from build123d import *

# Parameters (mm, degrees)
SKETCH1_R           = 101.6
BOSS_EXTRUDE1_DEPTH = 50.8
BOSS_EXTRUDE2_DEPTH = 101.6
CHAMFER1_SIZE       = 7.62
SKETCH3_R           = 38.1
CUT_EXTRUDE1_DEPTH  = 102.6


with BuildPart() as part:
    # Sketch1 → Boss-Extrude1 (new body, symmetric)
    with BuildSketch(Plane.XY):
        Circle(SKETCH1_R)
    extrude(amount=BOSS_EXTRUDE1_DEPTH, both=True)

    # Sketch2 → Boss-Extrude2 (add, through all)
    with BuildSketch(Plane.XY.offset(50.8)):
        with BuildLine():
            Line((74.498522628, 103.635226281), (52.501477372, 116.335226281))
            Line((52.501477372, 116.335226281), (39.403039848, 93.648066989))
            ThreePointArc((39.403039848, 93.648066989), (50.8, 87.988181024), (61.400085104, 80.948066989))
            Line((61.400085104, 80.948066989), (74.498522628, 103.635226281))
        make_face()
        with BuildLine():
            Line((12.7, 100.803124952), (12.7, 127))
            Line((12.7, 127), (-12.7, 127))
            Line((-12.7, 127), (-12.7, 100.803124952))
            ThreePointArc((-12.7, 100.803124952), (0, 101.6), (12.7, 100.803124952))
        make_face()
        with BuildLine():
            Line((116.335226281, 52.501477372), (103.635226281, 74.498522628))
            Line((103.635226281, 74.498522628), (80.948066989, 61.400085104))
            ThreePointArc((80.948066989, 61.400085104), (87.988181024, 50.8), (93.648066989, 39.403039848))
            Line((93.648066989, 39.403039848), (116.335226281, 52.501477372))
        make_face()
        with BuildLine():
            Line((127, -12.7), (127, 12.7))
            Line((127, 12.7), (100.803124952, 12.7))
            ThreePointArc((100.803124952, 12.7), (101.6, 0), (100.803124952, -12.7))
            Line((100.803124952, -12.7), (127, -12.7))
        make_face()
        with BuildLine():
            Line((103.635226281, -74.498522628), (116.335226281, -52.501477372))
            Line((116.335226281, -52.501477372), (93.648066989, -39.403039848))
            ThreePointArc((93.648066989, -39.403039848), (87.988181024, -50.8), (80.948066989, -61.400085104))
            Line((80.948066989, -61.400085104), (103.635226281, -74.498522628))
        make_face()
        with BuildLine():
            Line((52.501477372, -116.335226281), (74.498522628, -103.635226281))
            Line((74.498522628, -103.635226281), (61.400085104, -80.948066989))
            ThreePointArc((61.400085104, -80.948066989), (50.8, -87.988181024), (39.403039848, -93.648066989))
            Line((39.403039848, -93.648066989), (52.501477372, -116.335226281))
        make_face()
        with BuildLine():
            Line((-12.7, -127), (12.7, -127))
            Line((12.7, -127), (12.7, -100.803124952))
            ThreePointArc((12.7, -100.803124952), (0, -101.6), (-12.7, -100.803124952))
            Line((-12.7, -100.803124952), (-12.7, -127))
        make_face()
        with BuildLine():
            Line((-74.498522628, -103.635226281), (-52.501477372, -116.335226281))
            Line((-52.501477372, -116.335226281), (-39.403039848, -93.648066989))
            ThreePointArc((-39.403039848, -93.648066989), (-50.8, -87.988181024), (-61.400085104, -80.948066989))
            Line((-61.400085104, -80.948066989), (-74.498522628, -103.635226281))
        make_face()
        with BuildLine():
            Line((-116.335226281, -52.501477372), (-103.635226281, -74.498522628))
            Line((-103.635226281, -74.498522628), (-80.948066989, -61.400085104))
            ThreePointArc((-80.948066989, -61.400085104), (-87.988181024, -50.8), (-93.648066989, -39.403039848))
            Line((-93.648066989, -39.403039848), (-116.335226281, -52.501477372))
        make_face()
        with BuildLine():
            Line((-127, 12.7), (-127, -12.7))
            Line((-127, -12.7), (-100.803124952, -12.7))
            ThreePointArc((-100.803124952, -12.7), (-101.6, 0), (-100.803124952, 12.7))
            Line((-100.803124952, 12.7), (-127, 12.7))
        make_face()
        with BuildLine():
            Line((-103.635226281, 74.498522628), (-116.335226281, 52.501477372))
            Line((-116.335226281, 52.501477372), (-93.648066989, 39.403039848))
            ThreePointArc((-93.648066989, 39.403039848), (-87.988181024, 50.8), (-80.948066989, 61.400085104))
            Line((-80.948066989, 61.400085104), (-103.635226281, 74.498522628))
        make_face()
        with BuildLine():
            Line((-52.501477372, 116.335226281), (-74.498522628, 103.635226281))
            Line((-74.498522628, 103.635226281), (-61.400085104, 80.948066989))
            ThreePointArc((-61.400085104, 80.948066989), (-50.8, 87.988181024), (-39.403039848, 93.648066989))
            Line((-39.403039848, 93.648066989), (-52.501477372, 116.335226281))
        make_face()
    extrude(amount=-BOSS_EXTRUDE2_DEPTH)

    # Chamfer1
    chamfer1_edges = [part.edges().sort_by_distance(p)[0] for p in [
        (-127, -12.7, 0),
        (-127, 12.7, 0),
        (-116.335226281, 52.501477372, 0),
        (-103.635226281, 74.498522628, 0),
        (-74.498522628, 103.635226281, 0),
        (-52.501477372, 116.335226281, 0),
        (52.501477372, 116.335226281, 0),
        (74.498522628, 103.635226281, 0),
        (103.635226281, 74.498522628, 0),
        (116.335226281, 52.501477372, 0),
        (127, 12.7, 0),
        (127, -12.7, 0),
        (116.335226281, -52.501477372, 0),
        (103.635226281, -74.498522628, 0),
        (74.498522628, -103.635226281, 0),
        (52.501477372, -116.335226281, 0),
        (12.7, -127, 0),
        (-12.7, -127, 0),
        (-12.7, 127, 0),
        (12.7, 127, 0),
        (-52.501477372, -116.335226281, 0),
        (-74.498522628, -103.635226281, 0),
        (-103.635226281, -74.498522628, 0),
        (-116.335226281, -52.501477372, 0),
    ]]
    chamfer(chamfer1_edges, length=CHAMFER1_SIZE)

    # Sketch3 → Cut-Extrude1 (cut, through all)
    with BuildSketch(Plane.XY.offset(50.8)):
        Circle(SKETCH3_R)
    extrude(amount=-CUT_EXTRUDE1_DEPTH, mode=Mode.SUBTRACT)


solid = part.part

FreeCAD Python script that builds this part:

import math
import FreeCAD as App
import Part
import Sketcher
from FreeCAD import Vector
Q = App.Units.Quantity


def edges_at(feature, points):
    """Names of the edges that pass closest to the given points."""
    edges = feature.Shape.Edges
    near = lambda p: min(range(len(edges)), key=lambda i: edges[i].distToShape(Part.Vertex(*p))[0])
    return sorted({f"Edge{near(p) + 1}" for p in points})

doc = App.newDocument("Part")
body = doc.addObject("PartDesign::Body", "Body")

# Sketch on XY plane
sketch1 = body.newObject("Sketcher::SketchObject", "Sketch")
sketch1.AttachmentSupport = (doc.getObject("XY_Plane"), [""])
sketch1.MapMode = "FlatFace"
sketch1.addGeometry(Part.Circle(Vector(0, 0, 0), Vector(0, 0, 1), 102), False)
sketch1.addConstraint([
    Sketcher.Constraint("Coincident", 0, 3, -1, 1),
    Sketcher.Constraint("Diameter", 0, Q("8 in")),
])
pad1 = body.newObject("PartDesign::Pad", "Pad")
pad1.Profile = sketch1
pad1.Length = Q("4 in")
pad1.Midplane = True

# Sketch on XY plane
sketch2 = body.newObject("Sketcher::SketchObject", "Sketch001")
sketch2.AttachmentSupport = (doc.getObject("XY_Plane"), [""])
sketch2.MapMode = "FlatFace"
sketch2.AttachmentOffset = App.Placement(Vector(0, 0, 2 * 25.4), App.Rotation())
sketch2.addGeometry([
    Part.LineSegment(Vector(74, 104, 0), Vector(53, 116, 0)),  # 0
    Part.LineSegment(Vector(53, 116, 0), Vector(39, 94, 0)),  # 1
    Part.ArcOfCircle(Part.Circle(Vector(0, 0, 0), Vector(0, 0, 1), 102), math.radians(52.82), math.radians(67.18)),  # 2
    Part.LineSegment(Vector(61, 81, 0), Vector(74, 104, 0)),  # 3
    Part.LineSegment(Vector(13, 101, 0), Vector(13, 127, 0)),  # 4
    Part.LineSegment(Vector(13, 127, 0), Vector(-13, 127, 0)),  # 5
    Part.LineSegment(Vector(-13, 127, 0), Vector(-13, 101, 0)),  # 6
    Part.ArcOfCircle(Part.Circle(Vector(0, 0, 0), Vector(0, 0, 1), 102), math.radians(82.82), math.radians(97.18)),  # 7
    Part.LineSegment(Vector(116, 53, 0), Vector(104, 74, 0)),  # 8
    Part.LineSegment(Vector(104, 74, 0), Vector(81, 61, 0)),  # 9
    Part.ArcOfCircle(Part.Circle(Vector(0, 0, 0), Vector(0, 0, 1), 102), math.radians(22.82), math.radians(37.18)),  # 10
    Part.LineSegment(Vector(94, 39, 0), Vector(116, 53, 0)),  # 11
    Part.LineSegment(Vector(127, -13, 0), Vector(127, 13, 0)),  # 12
    Part.LineSegment(Vector(127, 13, 0), Vector(101, 13, 0)),  # 13
    Part.ArcOfCircle(Part.Circle(Vector(0, 0, 0), Vector(0, 0, 1), 102), math.radians(-7.18), math.radians(7.18)),  # 14
    Part.LineSegment(Vector(101, -13, 0), Vector(127, -13, 0)),  # 15
    Part.LineSegment(Vector(104, -74, 0), Vector(116, -53, 0)),  # 16
    Part.LineSegment(Vector(116, -53, 0), Vector(94, -39, 0)),  # 17
    Part.ArcOfCircle(Part.Circle(Vector(0, 0, 0), Vector(0, 0, 1), 102), math.radians(-37.18), math.radians(-22.82)),  # 18
    Part.LineSegment(Vector(81, -61, 0), Vector(104, -74, 0)),  # 19
    Part.LineSegment(Vector(53, -116, 0), Vector(74, -104, 0)),  # 20
    Part.LineSegment(Vector(74, -104, 0), Vector(61, -81, 0)),  # 21
    Part.ArcOfCircle(Part.Circle(Vector(0, 0, 0), Vector(0, 0, 1), 102), math.radians(-67.18), math.radians(-52.82)),  # 22
    Part.LineSegment(Vector(39, -94, 0), Vector(53, -116, 0)),  # 23
    Part.LineSegment(Vector(-13, -127, 0), Vector(13, -127, 0)),  # 24
    Part.LineSegment(Vector(13, -127, 0), Vector(13, -101, 0)),  # 25
    Part.ArcOfCircle(Part.Circle(Vector(0, 0, 0), Vector(0, 0, 1), 102), math.radians(-97.18), math.radians(-82.82)),  # 26
    Part.LineSegment(Vector(-13, -101, 0), Vector(-13, -127, 0)),  # 27
    Part.LineSegment(Vector(-74, -104, 0), Vector(-53, -116, 0)),  # 28
    Part.LineSegment(Vector(-53, -116, 0), Vector(-39, -94, 0)),  # 29
    Part.ArcOfCircle(Part.Circle(Vector(0, 0, 0), Vector(0, 0, 1), 102), math.radians(-127.18), math.radians(-112.82)),  # 30
    Part.LineSegment(Vector(-61, -81, 0), Vector(-74, -104, 0)),  # 31
    Part.LineSegment(Vector(-116, -53, 0), Vector(-104, -74, 0)),  # 32
    Part.LineSegment(Vector(-104, -74, 0), Vector(-81, -61, 0)),  # 33
    Part.ArcOfCircle(Part.Circle(Vector(0, 0, 0), Vector(0, 0, 1), 102), math.radians(-157.18), math.radians(-142.82)),  # 34
    Part.LineSegment(Vector(-94, -39, 0), Vector(-116, -53, 0)),  # 35
    Part.LineSegment(Vector(-127, 13, 0), Vector(-127, -13, 0)),  # 36
    Part.LineSegment(Vector(-127, -13, 0), Vector(-101, -13, 0)),  # 37
    Part.ArcOfCircle(Part.Circle(Vector(0, 0, 0), Vector(0, 0, 1), 102), math.radians(172.82), math.radians(187.18)),  # 38
    Part.LineSegment(Vector(-101, 13, 0), Vector(-127, 13, 0)),  # 39
    Part.LineSegment(Vector(-104, 74, 0), Vector(-116, 53, 0)),  # 40
    Part.LineSegment(Vector(-116, 53, 0), Vector(-94, 39, 0)),  # 41
    Part.ArcOfCircle(Part.Circle(Vector(0, 0, 0), Vector(0, 0, 1), 102), math.radians(142.82), math.radians(157.18)),  # 42
    Part.LineSegment(Vector(-81, 61, 0), Vector(-104, 74, 0)),  # 43
    Part.LineSegment(Vector(-53, 116, 0), Vector(-74, 104, 0)),  # 44
    Part.LineSegment(Vector(-74, 104, 0), Vector(-61, 81, 0)),  # 45
    Part.ArcOfCircle(Part.Circle(Vector(0, 0, 0), Vector(0, 0, 1), 102), math.radians(112.82), math.radians(127.18)),  # 46
    Part.LineSegment(Vector(-39, 94, 0), Vector(-53, 116, 0)),  # 47
], False)
sketch2.addConstraint([
    Sketcher.Constraint("Coincident", 0, 2, 1, 1),
    Sketcher.Constraint("Coincident", 1, 2, 2, 2),
    Sketcher.Constraint("Coincident", 2, 1, 3, 1),
    Sketcher.Constraint("Coincident", 3, 2, 0, 1),
    Sketcher.Constraint("Coincident", 4, 2, 5, 1),
    Sketcher.Constraint("Coincident", 5, 2, 6, 1),
    Sketcher.Constraint("Coincident", 6, 2, 7, 2),
    Sketcher.Constraint("Coincident", 7, 1, 4, 1),
    Sketcher.Constraint("Coincident", 8, 2, 9, 1),
    Sketcher.Constraint("Coincident", 9, 2, 10, 2),
    Sketcher.Constraint("Coincident", 10, 1, 11, 1),
    Sketcher.Constraint("Coincident", 11, 2, 8, 1),
    Sketcher.Constraint("Coincident", 12, 2, 13, 1),
    Sketcher.Constraint("Coincident", 13, 2, 14, 2),
    Sketcher.Constraint("Coincident", 14, 1, 15, 1),
    Sketcher.Constraint("Coincident", 15, 2, 12, 1),
    Sketcher.Constraint("Coincident", 16, 2, 17, 1),
    Sketcher.Constraint("Coincident", 17, 2, 18, 2),
    Sketcher.Constraint("Coincident", 18, 1, 19, 1),
    Sketcher.Constraint("Coincident", 19, 2, 16, 1),
    Sketcher.Constraint("Coincident", 20, 2, 21, 1),
    Sketcher.Constraint("Coincident", 21, 2, 22, 2),
    Sketcher.Constraint("Coincident", 22, 1, 23, 1),
    Sketcher.Constraint("Coincident", 23, 2, 20, 1),
    Sketcher.Constraint("Coincident", 24, 2, 25, 1),
    Sketcher.Constraint("Coincident", 25, 2, 26, 2),
    Sketcher.Constraint("Coincident", 26, 1, 27, 1),
    Sketcher.Constraint("Coincident", 27, 2, 24, 1),
    Sketcher.Constraint("Coincident", 28, 2, 29, 1),
    Sketcher.Constraint("Coincident", 29, 2, 30, 2),
    Sketcher.Constraint("Coincident", 30, 1, 31, 1),
    Sketcher.Constraint("Coincident", 31, 2, 28, 1),
    Sketcher.Constraint("Coincident", 32, 2, 33, 1),
    Sketcher.Constraint("Coincident", 33, 2, 34, 2),
    Sketcher.Constraint("Coincident", 34, 1, 35, 1),
    Sketcher.Constraint("Coincident", 35, 2, 32, 1),
    Sketcher.Constraint("Coincident", 36, 2, 37, 1),
    Sketcher.Constraint("Coincident", 37, 2, 38, 2),
    Sketcher.Constraint("Coincident", 38, 1, 39, 1),
    Sketcher.Constraint("Coincident", 39, 2, 36, 1),
    Sketcher.Constraint("Coincident", 40, 2, 41, 1),
    Sketcher.Constraint("Coincident", 41, 2, 42, 2),
    Sketcher.Constraint("Coincident", 42, 1, 43, 1),
    Sketcher.Constraint("Coincident", 43, 2, 40, 1),
    Sketcher.Constraint("Coincident", 44, 2, 45, 1),
    Sketcher.Constraint("Coincident", 45, 2, 46, 2),
    Sketcher.Constraint("Coincident", 46, 1, 47, 1),
    Sketcher.Constraint("Coincident", 47, 2, 44, 1),
    Sketcher.Constraint("Vertical", 4),
    Sketcher.Constraint("Horizontal", 5),
    Sketcher.Constraint("Vertical", 6),
    Sketcher.Constraint("Vertical", 12),
    Sketcher.Constraint("Horizontal", 13),
    Sketcher.Constraint("Horizontal", 15),
    Sketcher.Constraint("Horizontal", 24),
    Sketcher.Constraint("Vertical", 25),
    Sketcher.Constraint("Vertical", 27),
    Sketcher.Constraint("Vertical", 36),
    Sketcher.Constraint("Horizontal", 37),
    Sketcher.Constraint("Horizontal", 39),
    Sketcher.Constraint("Coincident", 2, 3, -1, 1),
    Sketcher.Constraint("Coincident", 7, 3, -1, 1),
    Sketcher.Constraint("Coincident", 10, 3, -1, 1),
    Sketcher.Constraint("Coincident", 14, 3, -1, 1),
    Sketcher.Constraint("Coincident", 18, 3, -1, 1),
    Sketcher.Constraint("Coincident", 22, 3, -1, 1),
    Sketcher.Constraint("Coincident", 26, 3, -1, 1),
    Sketcher.Constraint("Coincident", 30, 3, -1, 1),
    Sketcher.Constraint("Coincident", 34, 3, -1, 1),
    Sketcher.Constraint("Coincident", 38, 3, -1, 1),
    Sketcher.Constraint("Coincident", 42, 3, -1, 1),
    Sketcher.Constraint("Coincident", 46, 3, -1, 1),
    Sketcher.Constraint("Equal", 2, 7),
    Sketcher.Constraint("Equal", 7, 10),
    Sketcher.Constraint("Equal", 10, 14),
    Sketcher.Constraint("Equal", 14, 18),
    Sketcher.Constraint("Equal", 18, 22),
    Sketcher.Constraint("Equal", 22, 26),
    Sketcher.Constraint("Equal", 26, 30),
    Sketcher.Constraint("Equal", 30, 34),
    Sketcher.Constraint("Equal", 34, 38),
    Sketcher.Constraint("Equal", 38, 42),
    Sketcher.Constraint("Equal", 42, 46),
    Sketcher.Constraint("Symmetric", 5, 2, 24, 2, -1, 1),
    Sketcher.Constraint("Symmetric", 0, 2, 28, 2, -1, 1),
    Sketcher.Constraint("Symmetric", 3, 2, 31, 2, -1, 1),
    Sketcher.Constraint("Symmetric", 8, 2, 32, 2, -1, 1),
    Sketcher.Constraint("Symmetric", 11, 2, 35, 2, -1, 1),
    Sketcher.Constraint("Symmetric", 12, 2, 36, 2, -1, 1),
    Sketcher.Constraint("Symmetric", 16, 2, 40, 2, -1, 1),
    Sketcher.Constraint("Symmetric", 19, 2, 43, 2, -1, 1),
    Sketcher.Constraint("Symmetric", 20, 2, 44, 2, -1, 1),
    Sketcher.Constraint("Symmetric", 23, 2, 47, 2, -1, 1),
    Sketcher.Constraint("Symmetric", 23, 2, 28, 2, -2),
    Sketcher.Constraint("Symmetric", 20, 2, 31, 2, -2),
    Sketcher.Constraint("Symmetric", 19, 2, 32, 2, -2),
    Sketcher.Constraint("Symmetric", 16, 2, 35, 2, -2),
    Sketcher.Constraint("Perpendicular", 0, 1),
    Sketcher.Constraint("Parallel", 1, 3),
    Sketcher.Constraint("Perpendicular", 8, 9),
    Sketcher.Constraint("Parallel", 9, 11),
    Sketcher.Constraint("Parallel", 3, 16),
    Sketcher.Constraint("Perpendicular", 16, 17),
    Sketcher.Constraint("Parallel", 17, 19),
    Sketcher.Constraint("Perpendicular", 20, 21),
    Sketcher.Constraint("Parallel", 21, 23),
    Sketcher.Constraint("Perpendicular", 28, 29),
    Sketcher.Constraint("Parallel", 29, 31),
    Sketcher.Constraint("Perpendicular", 32, 33),
    Sketcher.Constraint("Parallel", 33, 35),
    Sketcher.Constraint("Perpendicular", 40, 41),
    Sketcher.Constraint("Parallel", 41, 43),
    Sketcher.Constraint("Perpendicular", 44, 45),
    Sketcher.Constraint("Parallel", 45, 47),
    Sketcher.Constraint("Horizontal", 6, 2, 7, 1),
    Sketcher.Constraint("Horizontal", 25, 2, 26, 1),
    Sketcher.Constraint("Horizontal", 15, 2, 36, 2),
    Sketcher.Constraint("Horizontal", 13, 2, 38, 1),
    Sketcher.Constraint("Equal", 39, 4),
    Sketcher.Constraint("Equal", 24, 12),
    Sketcher.Constraint("Equal", 1, 3),
    Sketcher.Constraint("Equal", 0, 8),
    Sketcher.Constraint("Equal", 3, 9),
    Sketcher.Constraint("Equal", 9, 11),
    Sketcher.Constraint("Radius", 2, Q("4 in")),
    Sketcher.Constraint("DistanceX", 5, 2, 5, 1, Q("1 in")),
    Sketcher.Constraint("Distance", 0, Q("1 in")),
    Sketcher.Constraint("DistanceY", -1, 1, 4, 2, Q("5 in")),
    Sketcher.Constraint("Angle", 0, Q("150 deg")),
    Sketcher.Constraint("DistanceY", 6, 2, 0, 2, Q("0.6115001 in")),
])
pad2 = body.newObject("PartDesign::Pad", "Pad001")
pad2.Profile = sketch2
pad2.Type = "UpToLast"
pad2.Reversed = True
doc.recompute()

chamfer = body.newObject("PartDesign::Chamfer", "Chamfer")
chamfer.Base = (pad2, edges_at(pad2, [
    (-127, -12.7, 0),
    (-127, 12.7, 0),
    (-116.335, 52.501, 0),
    (-103.635, 74.499, 0),
    (-74.499, 103.635, 0),
    (-52.501, 116.335, 0),
    (52.501, 116.335, 0),
    (74.499, 103.635, 0),
    (103.635, 74.499, 0),
    (116.335, 52.501, 0),
    (127, 12.7, 0),
    (127, -12.7, 0),
    (116.335, -52.501, 0),
    (103.635, -74.499, 0),
    (74.499, -103.635, 0),
    (52.501, -116.335, 0),
    (12.7, -127, 0),
    (-12.7, -127, 0),
    (-12.7, 127, 0),
    (12.7, 127, 0),
    (-52.501, -116.335, 0),
    (-74.499, -103.635, 0),
    (-103.635, -74.499, 0),
    (-116.335, -52.501, 0),
]))
chamfer.Size = Q("0.3 in")

# Sketch on XY plane
sketch3 = body.newObject("Sketcher::SketchObject", "Sketch002")
sketch3.AttachmentSupport = (doc.getObject("XY_Plane"), [""])
sketch3.MapMode = "FlatFace"
sketch3.AttachmentOffset = App.Placement(Vector(0, 0, 2 * 25.4), App.Rotation())
sketch3.addGeometry(Part.Circle(Vector(0, 0, 0), Vector(0, 0, 1), 38), False)
sketch3.addConstraint([
    Sketcher.Constraint("Coincident", 0, 3, -1, 1),
    Sketcher.Constraint("Diameter", 0, Q("3 in")),
])
pocket1 = body.newObject("PartDesign::Pocket", "Pocket")
pocket1.Profile = sketch3
pocket1.Type = "ThroughAll"

doc.recompute()
